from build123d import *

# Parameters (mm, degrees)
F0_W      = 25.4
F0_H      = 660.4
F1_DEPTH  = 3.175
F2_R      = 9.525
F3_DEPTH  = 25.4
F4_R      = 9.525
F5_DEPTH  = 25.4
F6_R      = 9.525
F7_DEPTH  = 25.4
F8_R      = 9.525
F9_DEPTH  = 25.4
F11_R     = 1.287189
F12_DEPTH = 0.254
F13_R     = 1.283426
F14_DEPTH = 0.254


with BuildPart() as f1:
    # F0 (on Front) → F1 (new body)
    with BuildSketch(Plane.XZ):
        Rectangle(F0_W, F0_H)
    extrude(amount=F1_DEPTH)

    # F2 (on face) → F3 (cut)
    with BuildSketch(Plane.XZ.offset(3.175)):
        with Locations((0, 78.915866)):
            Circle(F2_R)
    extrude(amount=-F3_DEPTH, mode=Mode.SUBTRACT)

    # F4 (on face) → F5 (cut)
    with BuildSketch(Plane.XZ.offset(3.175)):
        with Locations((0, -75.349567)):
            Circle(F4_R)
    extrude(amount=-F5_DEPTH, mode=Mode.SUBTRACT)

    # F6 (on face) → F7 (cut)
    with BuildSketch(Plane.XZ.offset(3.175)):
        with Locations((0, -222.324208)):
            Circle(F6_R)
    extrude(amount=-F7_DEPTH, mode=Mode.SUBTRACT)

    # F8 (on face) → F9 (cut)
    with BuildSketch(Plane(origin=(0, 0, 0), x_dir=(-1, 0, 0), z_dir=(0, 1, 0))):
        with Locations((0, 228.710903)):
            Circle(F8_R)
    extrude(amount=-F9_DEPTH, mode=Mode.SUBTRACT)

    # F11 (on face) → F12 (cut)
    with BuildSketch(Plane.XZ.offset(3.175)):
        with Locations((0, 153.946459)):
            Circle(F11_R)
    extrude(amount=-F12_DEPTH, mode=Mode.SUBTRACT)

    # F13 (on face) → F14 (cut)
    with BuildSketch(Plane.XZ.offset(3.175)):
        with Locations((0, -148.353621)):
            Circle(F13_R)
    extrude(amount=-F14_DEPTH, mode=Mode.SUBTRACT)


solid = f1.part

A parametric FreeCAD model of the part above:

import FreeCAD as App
import Part
import Sketcher
Q = App.Units.Quantity


def add_polygon(sketch, points):
    """Adds a closed chain of lines whose ends are joined by coincident constraints."""
    first, n = sketch.GeometryCount, len(points)
    for a, b in zip(points, points[1:] + points[:1]):
        sketch.addGeometry(Part.LineSegment(App.Vector(*a, 0), App.Vector(*b, 0)), False)
    for i in range(n):
        sketch.addConstraint(Sketcher.Constraint("Coincident", first + i, 2, first + (i + 1) % n, 1))

doc = App.newDocument("Part")
body = doc.addObject("PartDesign::Body", "Body")

sketch1 = body.newObject("Sketcher::SketchObject", "Sketch")
sketch1.AttachmentSupport = (doc.getObject("XZ_Plane"), [""])
sketch1.MapMode = "FlatFace"
add_polygon(sketch1, [(-13, 330), (-13, -330), (13, -330), (13, 330)])
sketch1.addConstraint(Sketcher.Constraint("Vertical", 0))
sketch1.addConstraint(Sketcher.Constraint("Horizontal", 1))
sketch1.addConstraint(Sketcher.Constraint("Vertical", 2))
sketch1.addConstraint(Sketcher.Constraint("Horizontal", 3))
sketch1.addConstraint(Sketcher.Constraint("Symmetric", 0, 2, 2, 2, -1, 1))
sketch1.addConstraint(Sketcher.Constraint("DistanceX", 1, 1, 1, 2, Q("1 in")))
sketch1.addConstraint(Sketcher.Constraint("DistanceY", 0, 2, 0, 1, Q("26 in")))
pad1 = body.newObject("PartDesign::Pad", "Pad")
pad1.Profile = sketch1
pad1.Length = Q("0.125 in")

sketch2 = body.newObject("Sketcher::SketchObject", "Sketch001")
sketch2.AttachmentSupport = (doc.getObject("XZ_Plane"), [""])
sketch2.MapMode = "FlatFace"
sketch2.AttachmentOffset = App.Placement(App.Vector(0, 0, 0.125 * 25.4), App.Rotation())
sketch2.addGeometry(Part.Circle(App.Vector(0, 79, 0), App.Vector(0, 0, 1), 10), False)
sketch2.addConstraint(Sketcher.Constraint("PointOnObject", 0, 3, -2))
sketch2.addConstraint(Sketcher.Constraint("Diameter", 0, Q("0.75 in")))
sketch2.addConstraint(Sketcher.Constraint("DistanceY", -1, 1, 0, 3, 78.915866))
pocket1 = body.newObject("PartDesign::Pocket", "Pocket")
pocket1.Profile = sketch2
pocket1.Length = Q("1 in")

sketch3 = body.newObject("Sketcher::SketchObject", "Sketch002")
sketch3.AttachmentSupport = (doc.getObject("XZ_Plane"), [""])
sketch3.MapMode = "FlatFace"
sketch3.AttachmentOffset = App.Placement(App.Vector(0, 0, 0.125 * 25.4), App.Rotation())
sketch3.addGeometry(Part.Circle(App.Vector(0, -75, 0), App.Vector(0, 0, 1), 10), False)
sketch3.addConstraint(Sketcher.Constraint("PointOnObject", 0, 3, -2))
sketch3.addConstraint(Sketcher.Constraint("Diameter", 0, Q("0.75 in")))
sketch3.addConstraint(Sketcher.Constraint("DistanceY", 0, 3, -1, 1, 75.349567))
pocket2 = body.newObject("PartDesign::Pocket", "Pocket001")
pocket2.Profile = sketch3
pocket2.Length = Q("1 in")

sketch4 = body.newObject("Sketcher::SketchObject", "Sketch003")
sketch4.AttachmentSupport = (doc.getObject("XZ_Plane"), [""])
sketch4.MapMode = "FlatFace"
sketch4.AttachmentOffset = App.Placement(App.Vector(0, 0, 0.125 * 25.4), App.Rotation())
sketch4.addGeometry(Part.Circle(App.Vector(0, -222, 0), App.Vector(0, 0, 1), 10), False)
sketch4.addConstraint(Sketcher.Constraint("PointOnObject", 0, 3, -2))
sketch4.addConstraint(Sketcher.Constraint("Diameter", 0, Q("0.75 in")))
sketch4.addConstraint(Sketcher.Constraint("DistanceY", 0, 3, -1, 1, 222.324208))
pocket3 = body.newObject("PartDesign::Pocket", "Pocket002")
pocket3.Profile = sketch4
pocket3.Length = Q("1 in")

sketch5 = body.newObject("Sketcher::SketchObject", "Sketch004")
sketch5.AttachmentSupport = (doc.getObject("XZ_Plane"), [""])
sketch5.MapMode = "FlatFace"
sketch5.addGeometry(Part.Circle(App.Vector(0, 229, 0), App.Vector(0, 0, 1), 10), False)
sketch5.addConstraint(Sketcher.Constraint("PointOnObject", 0, 3, -2))
sketch5.addConstraint(Sketcher.Constraint("Diameter", 0, Q("0.75 in")))
sketch5.addConstraint(Sketcher.Constraint("DistanceY", -1, 1, 0, 3, 228.710903))
pocket4 = body.newObject("PartDesign::Pocket", "Pocket003")
pocket4.Profile = sketch5
pocket4.Length = Q("1 in")
pocket4.Reversed = True

sketch6 = body.newObject("Sketcher::SketchObject", "Sketch005")
sketch6.AttachmentSupport = (doc.getObject("XZ_Plane"), [""])
sketch6.MapMode = "FlatFace"
sketch6.AttachmentOffset = App.Placement(App.Vector(0, 0, 0.125 * 25.4), App.Rotation())
sketch6.addGeometry(Part.Circle(App.Vector(0, 153.9, 0), App.Vector(0, 0, 1), 1.3), False)
sketch6.addConstraint(Sketcher.Constraint("PointOnObject", 0, 3, -2))
sketch6.addConstraint(Sketcher.Constraint("Diameter", 0, 2.574378))
sketch6.addConstraint(Sketcher.Constraint("DistanceY", -1, 1, 0, 3, 153.946459))
pocket5 = body.newObject("PartDesign::Pocket", "Pocket004")
pocket5.Profile = sketch6
pocket5.Length = Q("0.01 in")

sketch7 = body.newObject("Sketcher::SketchObject", "Sketch006")
sketch7.AttachmentSupport = (doc.getObject("XZ_Plane"), [""])
sketch7.MapMode = "FlatFace"
sketch7.AttachmentOffset = App.Placement(App.Vector(0, 0, 0.125 * 25.4), App.Rotation())
sketch7.addGeometry(Part.Circle(App.Vector(0, -148.4, 0), App.Vector(0, 0, 1), 1.3), False)
sketch7.addConstraint(Sketcher.Constraint("PointOnObject", 0, 3, -2))
sketch7.addConstraint(Sketcher.Constraint("Diameter", 0, 2.566852))
sketch7.addConstraint(Sketcher.Constraint("DistanceY", 0, 3, -1, 1, 148.353621))
pocket6 = body.newObject("PartDesign::Pocket", "Pocket005")
pocket6.Profile = sketch7
pocket6.Length = Q("0.01 in")

doc.recompute()
